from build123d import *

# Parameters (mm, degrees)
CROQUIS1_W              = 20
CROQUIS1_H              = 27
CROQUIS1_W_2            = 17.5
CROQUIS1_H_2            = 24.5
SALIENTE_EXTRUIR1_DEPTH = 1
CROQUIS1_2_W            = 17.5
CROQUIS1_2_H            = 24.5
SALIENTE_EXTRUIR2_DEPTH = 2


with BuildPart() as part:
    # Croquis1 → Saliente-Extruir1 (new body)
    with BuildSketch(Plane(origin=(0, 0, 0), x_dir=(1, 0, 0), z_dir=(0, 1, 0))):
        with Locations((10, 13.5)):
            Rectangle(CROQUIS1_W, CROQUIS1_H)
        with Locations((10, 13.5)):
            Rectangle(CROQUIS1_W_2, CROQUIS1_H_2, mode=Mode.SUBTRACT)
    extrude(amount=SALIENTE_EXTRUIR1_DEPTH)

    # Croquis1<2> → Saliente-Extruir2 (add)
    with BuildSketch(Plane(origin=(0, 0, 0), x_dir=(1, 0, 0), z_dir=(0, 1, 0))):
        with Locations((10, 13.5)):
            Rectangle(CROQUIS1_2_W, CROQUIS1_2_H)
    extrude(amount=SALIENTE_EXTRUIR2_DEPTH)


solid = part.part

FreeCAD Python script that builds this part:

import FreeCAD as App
import Part
import Sketcher
from FreeCAD import Vector
Q = App.Units.Quantity

doc = App.newDocument("Part")
body = doc.addObject("PartDesign::Body", "Body")

sketch1 = body.newObject("Sketcher::SketchObject", "Sketch")
sketch1.AttachmentSupport = (doc.getObject("XZ_Plane"), [""])
sketch1.MapMode = "FlatFace"
sketch1.addGeometry(Part.LineSegment(Vector(0, -27, 0), Vector(0, 0, 0)), False)
sketch1.addGeometry(Part.LineSegment(Vector(0, 0, 0), Vector(20, 0, 0)), False)
sketch1.addGeometry(Part.LineSegment(Vector(20, 0, 0), Vector(20, -27, 0)), False)
sketch1.addGeometry(Part.LineSegment(Vector(20, -27, 0), Vector(0, -27, 0)), False)
sketch1.addGeometry(Part.LineSegment(Vector(18.75, -1.25, 0), Vector(1.25, -1.25, 0)), False)
sketch1.addGeometry(Part.LineSegment(Vector(1.25, -1.25, 0), Vector(1.25, -25.75, 0)), False)
sketch1.addGeometry(Part.LineSegment(Vector(1.25, -25.75, 0), Vector(18.75, -25.75, 0)), False)
sketch1.addGeometry(Part.LineSegment(Vector(18.75, -25.75, 0), Vector(18.75, -1.25, 0)), False)
sketch1.addConstraint(Sketcher.Constraint("Coincident", 0, 2, 1, 1))
sketch1.addConstraint(Sketcher.Constraint("Coincident", 1, 2, 2, 1))
sketch1.addConstraint(Sketcher.Constraint("Coincident", 2, 2, 3, 1))
sketch1.addConstraint(Sketcher.Constraint("Coincident", 3, 2, 0, 1))
sketch1.addConstraint(Sketcher.Constraint("Coincident", 4, 2, 5, 1))
sketch1.addConstraint(Sketcher.Constraint("Coincident", 5, 2, 6, 1))
sketch1.addConstraint(Sketcher.Constraint("Coincident", 6, 2, 7, 1))
sketch1.addConstraint(Sketcher.Constraint("Coincident", 7, 2, 4, 1))
sketch1.addConstraint(Sketcher.Constraint("Vertical", 0))
sketch1.addConstraint(Sketcher.Constraint("Horizontal", 1))
sketch1.addConstraint(Sketcher.Constraint("Vertical", 2))
sketch1.addConstraint(Sketcher.Constraint("Horizontal", 3))
sketch1.addConstraint(Sketcher.Constraint("Horizontal", 4))
sketch1.addConstraint(Sketcher.Constraint("Vertical", 5))
sketch1.addConstraint(Sketcher.Constraint("Horizontal", 6))
sketch1.addConstraint(Sketcher.Constraint("Vertical", 7))
sketch1.addConstraint(Sketcher.Constraint("Coincident", 0, 2, -1, 1))
sketch1.addConstraint(Sketcher.Constraint("DistanceX", 1, 1, 1, 2, Q("20 mm")))
sketch1.addConstraint(Sketcher.Constraint("DistanceY", 0, 1, 0, 2, Q("27 mm")))
sketch1.addConstraint(Sketcher.Constraint("DistanceX", 4, 2, 4, 1, Q("17.5 mm")))
sketch1.addConstraint(Sketcher.Constraint("DistanceY", 5, 2, 5, 1, Q("24.5 mm")))
sketch1.addConstraint(Sketcher.Constraint("DistanceX", -1, 1, 4, 2, Q("1.25 mm")))
sketch1.addConstraint(Sketcher.Constraint("DistanceY", 4, 2, -1, 1, Q("1.25 mm")))
pad1 = body.newObject("PartDesign::Pad", "Pad")
pad1.Profile = sketch1
pad1.Length = 1
pad1.Reversed = True

sketch2 = body.newObject("Sketcher::SketchObject", "Sketch001")
sketch2.AttachmentSupport = (doc.getObject("XZ_Plane"), [""])
sketch2.MapMode = "FlatFace"
sketch2.addGeometry(Part.LineSegment(Vector(1.25, -25.75, 0), Vector(1.25, -1.25, 0)), False)
sketch2.addGeometry(Part.LineSegment(Vector(1.25, -1.25, 0), Vector(18.75, -1.25, 0)), False)
sketch2.addGeometry(Part.LineSegment(Vector(18.75, -1.25, 0), Vector(18.75, -25.75, 0)), False)
sketch2.addGeometry(Part.LineSegment(Vector(18.75, -25.75, 0), Vector(1.25, -25.75, 0)), False)
sketch2.addConstraint(Sketcher.Constraint("Coincident", 0, 2, 1, 1))
sketch2.addConstraint(Sketcher.Constraint("Coincident", 1, 2, 2, 1))
sketch2.addConstraint(Sketcher.Constraint("Coincident", 2, 2, 3, 1))
sketch2.addConstraint(Sketcher.Constraint("Coincident", 3, 2, 0, 1))
sketch2.addConstraint(Sketcher.Constraint("Vertical", 0))
sketch2.addConstraint(Sketcher.Constraint("Horizontal", 1))
sketch2.addConstraint(Sketcher.Constraint("Vertical", 2))
sketch2.addConstraint(Sketcher.Constraint("Horizontal", 3))
sketch2.addConstraint(Sketcher.Constraint("DistanceX", 1, 1, 1, 2, Q("17.5 mm")))
sketch2.addConstraint(Sketcher.Constraint("DistanceY", 0, 1, 0, 2, Q("24.5 mm")))
sketch2.addConstraint(Sketcher.Constraint("DistanceX", -1, 1, 0, 2, Q("1.25 mm")))
sketch2.addConstraint(Sketcher.Constraint("DistanceY", 0, 2, -1, 1, Q("1.25 mm")))
pad2 = body.newObject("PartDesign::Pad", "Pad001")
pad2.Profile = sketch2
pad2.Length = 2
pad2.Reversed = True

doc.recompute()
